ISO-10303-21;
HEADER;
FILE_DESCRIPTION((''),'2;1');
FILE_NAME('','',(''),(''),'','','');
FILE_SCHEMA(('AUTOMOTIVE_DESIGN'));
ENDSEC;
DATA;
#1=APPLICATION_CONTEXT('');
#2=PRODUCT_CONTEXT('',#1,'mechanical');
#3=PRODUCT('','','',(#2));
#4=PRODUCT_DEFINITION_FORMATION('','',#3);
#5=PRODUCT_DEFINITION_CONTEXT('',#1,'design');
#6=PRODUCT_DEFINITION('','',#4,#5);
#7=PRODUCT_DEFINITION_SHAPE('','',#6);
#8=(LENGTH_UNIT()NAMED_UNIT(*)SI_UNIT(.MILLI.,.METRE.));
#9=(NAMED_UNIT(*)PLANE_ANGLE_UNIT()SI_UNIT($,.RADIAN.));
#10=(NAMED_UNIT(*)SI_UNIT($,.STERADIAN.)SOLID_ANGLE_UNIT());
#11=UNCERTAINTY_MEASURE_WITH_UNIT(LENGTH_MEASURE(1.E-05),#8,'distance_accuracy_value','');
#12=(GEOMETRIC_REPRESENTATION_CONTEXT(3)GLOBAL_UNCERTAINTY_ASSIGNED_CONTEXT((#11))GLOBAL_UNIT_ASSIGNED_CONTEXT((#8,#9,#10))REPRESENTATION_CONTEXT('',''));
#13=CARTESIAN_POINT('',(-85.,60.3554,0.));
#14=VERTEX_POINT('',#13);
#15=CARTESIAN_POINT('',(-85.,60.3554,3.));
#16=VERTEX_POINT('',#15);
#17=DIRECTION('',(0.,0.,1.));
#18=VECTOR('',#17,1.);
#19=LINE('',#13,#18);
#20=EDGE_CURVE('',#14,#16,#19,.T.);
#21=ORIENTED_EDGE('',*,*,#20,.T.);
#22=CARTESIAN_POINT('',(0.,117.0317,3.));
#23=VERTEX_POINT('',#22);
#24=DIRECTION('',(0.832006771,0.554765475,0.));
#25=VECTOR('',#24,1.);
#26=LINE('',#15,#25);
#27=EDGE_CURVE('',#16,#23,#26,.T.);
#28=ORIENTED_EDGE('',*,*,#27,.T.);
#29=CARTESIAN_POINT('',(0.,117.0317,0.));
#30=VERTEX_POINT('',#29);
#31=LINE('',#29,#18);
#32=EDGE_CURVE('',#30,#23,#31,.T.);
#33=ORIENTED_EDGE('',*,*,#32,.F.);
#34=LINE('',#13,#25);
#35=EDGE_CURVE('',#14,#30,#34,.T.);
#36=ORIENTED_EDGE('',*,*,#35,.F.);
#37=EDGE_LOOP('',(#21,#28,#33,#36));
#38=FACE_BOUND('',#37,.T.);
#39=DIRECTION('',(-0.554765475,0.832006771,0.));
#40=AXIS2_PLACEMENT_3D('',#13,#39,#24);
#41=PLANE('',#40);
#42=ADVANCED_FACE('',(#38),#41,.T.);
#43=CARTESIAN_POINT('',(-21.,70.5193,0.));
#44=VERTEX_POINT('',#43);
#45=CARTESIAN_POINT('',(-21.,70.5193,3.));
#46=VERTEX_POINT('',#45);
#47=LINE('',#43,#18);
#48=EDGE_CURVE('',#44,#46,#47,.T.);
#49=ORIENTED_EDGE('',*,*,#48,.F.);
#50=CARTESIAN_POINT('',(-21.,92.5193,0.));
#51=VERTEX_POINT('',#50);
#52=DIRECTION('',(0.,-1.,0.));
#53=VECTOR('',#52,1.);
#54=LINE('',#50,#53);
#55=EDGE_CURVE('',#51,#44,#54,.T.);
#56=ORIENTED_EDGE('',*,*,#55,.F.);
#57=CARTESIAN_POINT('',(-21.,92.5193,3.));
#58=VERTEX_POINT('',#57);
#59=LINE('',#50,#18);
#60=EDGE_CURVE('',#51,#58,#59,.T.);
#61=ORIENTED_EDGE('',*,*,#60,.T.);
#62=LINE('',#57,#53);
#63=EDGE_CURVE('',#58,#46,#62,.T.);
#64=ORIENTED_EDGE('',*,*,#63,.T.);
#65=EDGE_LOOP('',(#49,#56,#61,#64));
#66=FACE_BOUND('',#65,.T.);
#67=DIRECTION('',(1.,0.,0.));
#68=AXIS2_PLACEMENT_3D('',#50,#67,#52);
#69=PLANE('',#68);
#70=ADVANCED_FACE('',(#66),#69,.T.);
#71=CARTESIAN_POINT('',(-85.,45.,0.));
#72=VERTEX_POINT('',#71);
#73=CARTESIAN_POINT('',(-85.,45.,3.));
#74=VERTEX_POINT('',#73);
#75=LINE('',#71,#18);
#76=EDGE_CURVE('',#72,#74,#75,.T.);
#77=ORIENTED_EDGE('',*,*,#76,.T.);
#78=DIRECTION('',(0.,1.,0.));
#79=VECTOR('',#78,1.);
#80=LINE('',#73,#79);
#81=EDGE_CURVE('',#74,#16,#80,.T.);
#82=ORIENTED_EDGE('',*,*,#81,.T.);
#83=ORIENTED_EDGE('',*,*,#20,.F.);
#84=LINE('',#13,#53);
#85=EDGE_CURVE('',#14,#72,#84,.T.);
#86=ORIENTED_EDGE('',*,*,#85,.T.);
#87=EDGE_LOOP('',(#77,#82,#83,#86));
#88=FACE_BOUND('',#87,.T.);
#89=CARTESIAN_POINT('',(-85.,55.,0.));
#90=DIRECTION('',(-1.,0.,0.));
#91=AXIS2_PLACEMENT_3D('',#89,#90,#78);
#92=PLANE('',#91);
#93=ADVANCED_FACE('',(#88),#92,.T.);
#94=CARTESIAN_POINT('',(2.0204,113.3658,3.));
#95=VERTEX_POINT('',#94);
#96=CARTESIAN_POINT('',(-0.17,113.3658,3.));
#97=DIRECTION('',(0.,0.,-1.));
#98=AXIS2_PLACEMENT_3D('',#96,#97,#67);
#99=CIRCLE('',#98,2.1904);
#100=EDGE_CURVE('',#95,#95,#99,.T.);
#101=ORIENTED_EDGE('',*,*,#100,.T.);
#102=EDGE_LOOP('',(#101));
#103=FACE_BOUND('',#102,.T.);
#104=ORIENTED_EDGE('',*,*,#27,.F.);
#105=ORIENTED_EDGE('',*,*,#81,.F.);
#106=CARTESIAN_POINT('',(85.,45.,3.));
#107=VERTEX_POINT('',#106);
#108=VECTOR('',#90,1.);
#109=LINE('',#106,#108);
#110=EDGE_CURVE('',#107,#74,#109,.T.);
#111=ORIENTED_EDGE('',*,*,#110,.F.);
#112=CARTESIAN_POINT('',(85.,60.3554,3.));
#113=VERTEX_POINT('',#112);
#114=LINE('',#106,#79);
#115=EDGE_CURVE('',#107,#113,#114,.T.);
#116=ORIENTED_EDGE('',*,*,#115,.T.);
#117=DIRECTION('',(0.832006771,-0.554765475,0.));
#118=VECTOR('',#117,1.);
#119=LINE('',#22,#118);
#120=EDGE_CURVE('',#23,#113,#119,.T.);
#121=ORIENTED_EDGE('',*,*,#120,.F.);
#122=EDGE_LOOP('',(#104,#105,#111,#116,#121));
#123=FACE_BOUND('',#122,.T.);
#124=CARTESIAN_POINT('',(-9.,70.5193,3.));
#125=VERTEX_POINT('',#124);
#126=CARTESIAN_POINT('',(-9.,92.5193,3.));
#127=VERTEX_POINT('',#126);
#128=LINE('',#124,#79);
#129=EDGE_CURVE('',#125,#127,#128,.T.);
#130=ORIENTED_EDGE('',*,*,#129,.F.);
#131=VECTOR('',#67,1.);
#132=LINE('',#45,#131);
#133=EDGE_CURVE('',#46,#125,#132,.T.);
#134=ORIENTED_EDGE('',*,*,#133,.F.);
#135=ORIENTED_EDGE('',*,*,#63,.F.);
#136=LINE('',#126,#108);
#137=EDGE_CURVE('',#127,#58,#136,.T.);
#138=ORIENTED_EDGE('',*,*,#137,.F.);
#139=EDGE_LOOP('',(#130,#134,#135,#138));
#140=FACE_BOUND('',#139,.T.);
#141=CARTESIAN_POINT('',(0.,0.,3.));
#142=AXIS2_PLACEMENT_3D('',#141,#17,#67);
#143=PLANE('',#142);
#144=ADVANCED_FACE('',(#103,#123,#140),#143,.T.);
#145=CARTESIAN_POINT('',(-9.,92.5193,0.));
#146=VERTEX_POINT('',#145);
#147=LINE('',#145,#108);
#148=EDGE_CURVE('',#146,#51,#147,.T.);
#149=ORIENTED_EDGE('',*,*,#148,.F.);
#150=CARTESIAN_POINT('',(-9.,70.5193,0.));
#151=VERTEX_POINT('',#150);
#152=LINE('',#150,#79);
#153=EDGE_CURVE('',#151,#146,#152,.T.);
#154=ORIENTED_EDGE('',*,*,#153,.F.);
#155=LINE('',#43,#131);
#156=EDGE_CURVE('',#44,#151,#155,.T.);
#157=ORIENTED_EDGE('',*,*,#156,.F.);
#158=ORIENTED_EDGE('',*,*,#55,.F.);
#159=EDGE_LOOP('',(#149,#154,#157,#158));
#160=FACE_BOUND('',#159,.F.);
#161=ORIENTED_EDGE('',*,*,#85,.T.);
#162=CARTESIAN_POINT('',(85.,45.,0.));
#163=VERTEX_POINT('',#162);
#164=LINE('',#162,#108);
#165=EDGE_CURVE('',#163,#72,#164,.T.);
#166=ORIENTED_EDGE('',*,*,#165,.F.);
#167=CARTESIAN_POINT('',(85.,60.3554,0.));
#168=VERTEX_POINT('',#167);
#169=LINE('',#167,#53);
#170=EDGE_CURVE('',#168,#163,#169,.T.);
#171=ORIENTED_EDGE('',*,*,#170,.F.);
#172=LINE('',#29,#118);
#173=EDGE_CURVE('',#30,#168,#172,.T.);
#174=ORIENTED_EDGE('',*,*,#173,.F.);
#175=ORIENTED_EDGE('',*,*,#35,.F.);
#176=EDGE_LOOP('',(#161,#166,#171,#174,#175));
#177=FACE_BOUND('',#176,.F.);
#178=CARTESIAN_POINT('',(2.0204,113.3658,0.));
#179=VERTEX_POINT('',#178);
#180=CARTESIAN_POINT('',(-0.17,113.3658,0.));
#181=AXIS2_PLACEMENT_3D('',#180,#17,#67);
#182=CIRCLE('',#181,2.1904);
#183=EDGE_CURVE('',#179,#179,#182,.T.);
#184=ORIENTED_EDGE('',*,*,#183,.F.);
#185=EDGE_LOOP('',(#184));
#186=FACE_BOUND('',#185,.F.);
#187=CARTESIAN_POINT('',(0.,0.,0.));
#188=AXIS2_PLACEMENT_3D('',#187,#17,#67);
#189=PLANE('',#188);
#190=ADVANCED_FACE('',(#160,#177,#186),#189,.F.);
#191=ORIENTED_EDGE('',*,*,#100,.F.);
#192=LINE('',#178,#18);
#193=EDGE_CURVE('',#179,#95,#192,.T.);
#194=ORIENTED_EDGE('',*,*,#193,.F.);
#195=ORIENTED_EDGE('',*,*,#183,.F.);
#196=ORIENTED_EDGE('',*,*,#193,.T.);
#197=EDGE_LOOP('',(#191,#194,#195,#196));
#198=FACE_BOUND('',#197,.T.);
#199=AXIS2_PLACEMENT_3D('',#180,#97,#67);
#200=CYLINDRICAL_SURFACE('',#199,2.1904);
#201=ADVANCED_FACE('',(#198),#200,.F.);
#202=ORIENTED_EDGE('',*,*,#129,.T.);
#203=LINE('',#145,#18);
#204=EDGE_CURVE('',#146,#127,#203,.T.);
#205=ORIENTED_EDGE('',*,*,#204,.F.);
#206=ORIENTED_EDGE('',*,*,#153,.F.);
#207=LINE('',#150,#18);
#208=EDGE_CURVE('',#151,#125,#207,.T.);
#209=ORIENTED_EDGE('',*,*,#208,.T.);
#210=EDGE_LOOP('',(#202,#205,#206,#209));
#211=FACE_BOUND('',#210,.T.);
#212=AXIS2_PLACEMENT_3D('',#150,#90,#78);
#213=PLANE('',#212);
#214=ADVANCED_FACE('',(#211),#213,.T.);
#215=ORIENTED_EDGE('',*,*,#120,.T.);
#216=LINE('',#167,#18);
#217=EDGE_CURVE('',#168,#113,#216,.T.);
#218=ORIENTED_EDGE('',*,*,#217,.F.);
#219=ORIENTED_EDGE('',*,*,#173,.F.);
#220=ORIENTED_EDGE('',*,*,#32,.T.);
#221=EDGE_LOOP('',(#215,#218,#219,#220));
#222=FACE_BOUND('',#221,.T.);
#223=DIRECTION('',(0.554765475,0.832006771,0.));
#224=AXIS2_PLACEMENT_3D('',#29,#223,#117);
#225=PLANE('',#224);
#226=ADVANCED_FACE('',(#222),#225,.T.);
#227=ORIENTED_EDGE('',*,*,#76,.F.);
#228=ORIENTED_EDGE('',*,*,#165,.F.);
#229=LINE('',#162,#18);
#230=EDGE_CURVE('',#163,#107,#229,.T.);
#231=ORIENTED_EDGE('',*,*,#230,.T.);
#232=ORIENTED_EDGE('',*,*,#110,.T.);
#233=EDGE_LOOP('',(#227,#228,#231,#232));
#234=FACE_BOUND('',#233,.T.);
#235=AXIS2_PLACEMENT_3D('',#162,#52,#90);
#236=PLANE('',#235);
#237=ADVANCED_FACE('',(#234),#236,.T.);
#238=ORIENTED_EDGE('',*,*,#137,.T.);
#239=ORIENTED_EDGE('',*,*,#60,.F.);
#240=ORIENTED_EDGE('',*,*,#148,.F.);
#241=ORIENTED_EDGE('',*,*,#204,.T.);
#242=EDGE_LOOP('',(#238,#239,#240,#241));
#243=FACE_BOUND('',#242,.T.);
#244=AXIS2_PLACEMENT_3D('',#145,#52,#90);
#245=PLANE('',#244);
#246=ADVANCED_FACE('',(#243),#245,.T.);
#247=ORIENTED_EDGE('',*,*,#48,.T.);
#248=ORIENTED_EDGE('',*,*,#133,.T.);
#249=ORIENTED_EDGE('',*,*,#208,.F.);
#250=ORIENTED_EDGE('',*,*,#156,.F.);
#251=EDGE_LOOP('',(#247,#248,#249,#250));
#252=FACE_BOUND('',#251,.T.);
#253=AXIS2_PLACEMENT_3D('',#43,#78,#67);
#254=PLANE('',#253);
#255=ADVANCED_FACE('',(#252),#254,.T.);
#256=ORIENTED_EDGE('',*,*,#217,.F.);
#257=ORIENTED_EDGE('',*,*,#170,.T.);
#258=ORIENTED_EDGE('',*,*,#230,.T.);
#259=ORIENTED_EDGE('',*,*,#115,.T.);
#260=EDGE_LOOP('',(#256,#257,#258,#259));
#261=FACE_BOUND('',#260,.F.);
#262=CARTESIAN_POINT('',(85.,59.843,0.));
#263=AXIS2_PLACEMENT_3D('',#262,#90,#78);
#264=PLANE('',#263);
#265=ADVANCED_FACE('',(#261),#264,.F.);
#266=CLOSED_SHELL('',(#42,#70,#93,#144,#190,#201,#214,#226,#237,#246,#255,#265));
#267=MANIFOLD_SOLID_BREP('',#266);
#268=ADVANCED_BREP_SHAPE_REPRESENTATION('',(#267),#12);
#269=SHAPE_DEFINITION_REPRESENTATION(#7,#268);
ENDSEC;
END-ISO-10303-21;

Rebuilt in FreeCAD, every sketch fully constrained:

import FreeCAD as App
import Part
import Sketcher
Q = App.Units.Quantity


def add_polygon(sketch, points):
    """Adds a closed chain of lines whose ends are joined by coincident constraints."""
    first, n = sketch.GeometryCount, len(points)
    for a, b in zip(points, points[1:] + points[:1]):
        sketch.addGeometry(Part.LineSegment(App.Vector(*a, 0), App.Vector(*b, 0)), False)
    for i in range(n):
        sketch.addConstraint(Sketcher.Constraint("Coincident", first + i, 2, first + (i + 1) % n, 1))

doc = App.newDocument("Part")
body = doc.addObject("PartDesign::Body", "Body")

# Sketch on XY plane
sketch1 = body.newObject("Sketcher::SketchObject", "Sketch")
sketch1.AttachmentSupport = (doc.getObject("XY_Plane"), [""])
sketch1.MapMode = "FlatFace"
add_polygon(sketch1, [(-85, 45), (85, 45), (85, 60.3554), (0, 117.0317), (-85, 60.3554)])  # lines 0-4
sketch1.addGeometry(Part.Circle(App.Vector(-0.17, 113.3658, 0), App.Vector(0, 0, 1), 2.1904), False)  # 5
add_polygon(sketch1, [(-9, 70.5193), (-21, 70.5193), (-21, 92.5193), (-9, 92.5193)])  # lines 6-9
sketch1.addConstraint([
    Sketcher.Constraint("Horizontal", 0),
    Sketcher.Constraint("Vertical", 1),
    Sketcher.Constraint("Vertical", 4),
    Sketcher.Constraint("Horizontal", 6),
    Sketcher.Constraint("Vertical", 7),
    Sketcher.Constraint("Horizontal", 8),
    Sketcher.Constraint("Vertical", 9),
    Sketcher.Constraint("Symmetric", 1, 2, 3, 2, -2),
    Sketcher.Constraint("PointOnObject", 2, 2, -2),
    Sketcher.Constraint("DistanceX", 0, 1, 0, 2, Q("170 mm")),
    Sketcher.Constraint("DistanceX", 6, 2, 6, 1, Q("12 mm")),
    Sketcher.Constraint("DistanceY", 7, 1, 7, 2, Q("22 mm")),
    Sketcher.Constraint("DistanceY", -1, 1, 0, 2, Q("45 mm")),
    Sketcher.Constraint("DistanceX", 6, 2, -1, 1, Q("21 mm")),
    Sketcher.Constraint("Diameter", 5, Q("4.3808 mm")),
    Sketcher.Constraint("DistanceX", 5, 3, -1, 1, Q("0.17 mm")),
    Sketcher.Constraint("DistanceY", 1, 1, 1, 2, Q("15.3554 mm")),
    Sketcher.Constraint("DistanceY", 5, 3, 2, 2, Q("3.666 mm")),
    Sketcher.Constraint("DistanceY", 3, 2, 6, 2, Q("10.164 mm")),
    Sketcher.Constraint("Distance", 2, Q("102.1626 mm")),
])
pad1 = body.newObject("PartDesign::Pad", "Pad")
pad1.Profile = sketch1
pad1.Length = 3

doc.recompute()
